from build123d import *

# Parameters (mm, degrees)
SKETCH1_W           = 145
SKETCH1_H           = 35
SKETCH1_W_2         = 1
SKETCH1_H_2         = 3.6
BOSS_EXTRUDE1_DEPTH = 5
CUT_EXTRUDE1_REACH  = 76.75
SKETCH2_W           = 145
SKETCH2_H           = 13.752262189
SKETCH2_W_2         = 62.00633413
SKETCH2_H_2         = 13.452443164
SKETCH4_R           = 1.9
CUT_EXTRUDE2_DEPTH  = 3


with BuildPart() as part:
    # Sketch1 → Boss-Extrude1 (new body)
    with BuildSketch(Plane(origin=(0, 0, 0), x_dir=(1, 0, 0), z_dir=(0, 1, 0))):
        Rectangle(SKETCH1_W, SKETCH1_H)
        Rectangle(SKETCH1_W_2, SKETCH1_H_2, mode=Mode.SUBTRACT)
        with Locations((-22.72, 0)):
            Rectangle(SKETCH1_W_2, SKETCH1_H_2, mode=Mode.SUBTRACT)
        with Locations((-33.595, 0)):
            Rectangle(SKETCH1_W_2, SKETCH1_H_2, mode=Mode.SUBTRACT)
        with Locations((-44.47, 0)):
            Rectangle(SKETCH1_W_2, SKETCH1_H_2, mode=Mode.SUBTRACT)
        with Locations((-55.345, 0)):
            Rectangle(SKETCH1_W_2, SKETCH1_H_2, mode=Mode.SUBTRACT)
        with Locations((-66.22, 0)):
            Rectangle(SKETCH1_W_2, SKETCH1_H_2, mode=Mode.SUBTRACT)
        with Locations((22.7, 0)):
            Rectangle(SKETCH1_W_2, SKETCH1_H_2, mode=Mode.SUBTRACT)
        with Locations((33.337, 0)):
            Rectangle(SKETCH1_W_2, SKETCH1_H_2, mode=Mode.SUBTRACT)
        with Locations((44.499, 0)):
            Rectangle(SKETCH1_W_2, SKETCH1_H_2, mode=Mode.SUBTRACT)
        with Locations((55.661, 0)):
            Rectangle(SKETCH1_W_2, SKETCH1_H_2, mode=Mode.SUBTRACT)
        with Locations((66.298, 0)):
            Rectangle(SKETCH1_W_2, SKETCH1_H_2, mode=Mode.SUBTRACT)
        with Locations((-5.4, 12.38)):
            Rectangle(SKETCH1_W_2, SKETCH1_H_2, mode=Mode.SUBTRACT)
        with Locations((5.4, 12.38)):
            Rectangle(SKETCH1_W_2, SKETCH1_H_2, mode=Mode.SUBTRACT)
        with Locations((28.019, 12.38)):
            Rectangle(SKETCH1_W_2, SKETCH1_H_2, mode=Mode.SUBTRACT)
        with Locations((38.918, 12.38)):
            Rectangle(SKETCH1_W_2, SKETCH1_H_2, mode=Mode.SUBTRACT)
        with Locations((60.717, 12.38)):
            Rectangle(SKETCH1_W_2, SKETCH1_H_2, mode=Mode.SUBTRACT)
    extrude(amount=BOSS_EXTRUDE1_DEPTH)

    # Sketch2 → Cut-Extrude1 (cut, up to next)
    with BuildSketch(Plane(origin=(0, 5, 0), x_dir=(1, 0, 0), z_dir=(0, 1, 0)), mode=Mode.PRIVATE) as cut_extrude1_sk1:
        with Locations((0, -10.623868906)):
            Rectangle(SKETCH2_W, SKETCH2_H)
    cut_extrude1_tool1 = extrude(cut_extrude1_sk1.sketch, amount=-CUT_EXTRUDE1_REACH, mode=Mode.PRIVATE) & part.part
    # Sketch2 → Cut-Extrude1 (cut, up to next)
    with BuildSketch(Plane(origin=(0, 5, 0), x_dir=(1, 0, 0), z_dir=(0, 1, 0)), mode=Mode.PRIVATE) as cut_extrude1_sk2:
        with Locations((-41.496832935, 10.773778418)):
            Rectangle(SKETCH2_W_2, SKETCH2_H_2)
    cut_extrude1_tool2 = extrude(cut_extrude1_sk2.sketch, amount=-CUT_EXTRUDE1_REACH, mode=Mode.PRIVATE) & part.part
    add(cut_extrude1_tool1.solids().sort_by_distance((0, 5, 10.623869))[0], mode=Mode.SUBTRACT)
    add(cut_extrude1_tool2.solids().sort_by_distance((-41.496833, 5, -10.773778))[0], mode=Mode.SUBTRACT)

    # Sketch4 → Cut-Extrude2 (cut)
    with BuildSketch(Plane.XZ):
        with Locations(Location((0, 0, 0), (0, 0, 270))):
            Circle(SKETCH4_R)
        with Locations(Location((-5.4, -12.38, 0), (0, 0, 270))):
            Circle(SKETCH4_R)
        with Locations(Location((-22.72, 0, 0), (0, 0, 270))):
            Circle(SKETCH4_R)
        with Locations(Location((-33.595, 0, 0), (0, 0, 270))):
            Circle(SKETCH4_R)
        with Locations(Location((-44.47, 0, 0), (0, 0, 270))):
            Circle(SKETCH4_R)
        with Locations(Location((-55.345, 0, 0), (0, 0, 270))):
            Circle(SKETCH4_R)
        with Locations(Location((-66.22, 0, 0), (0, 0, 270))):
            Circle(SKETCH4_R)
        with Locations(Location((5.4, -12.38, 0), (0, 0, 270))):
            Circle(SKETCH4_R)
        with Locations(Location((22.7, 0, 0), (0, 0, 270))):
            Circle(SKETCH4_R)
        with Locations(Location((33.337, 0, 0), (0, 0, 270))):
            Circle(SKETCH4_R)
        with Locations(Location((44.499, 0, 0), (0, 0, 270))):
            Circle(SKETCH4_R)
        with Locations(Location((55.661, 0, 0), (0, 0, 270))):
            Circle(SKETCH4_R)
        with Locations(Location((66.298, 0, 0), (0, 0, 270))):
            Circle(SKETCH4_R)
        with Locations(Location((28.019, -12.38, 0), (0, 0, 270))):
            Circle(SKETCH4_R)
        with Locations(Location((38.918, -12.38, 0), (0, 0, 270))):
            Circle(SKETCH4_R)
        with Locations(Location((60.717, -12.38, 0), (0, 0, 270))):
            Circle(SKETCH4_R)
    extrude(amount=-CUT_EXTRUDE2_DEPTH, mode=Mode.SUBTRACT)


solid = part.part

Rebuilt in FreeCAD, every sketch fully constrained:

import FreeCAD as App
import Part
import Sketcher

V = App.Vector

doc = App.newDocument("Part")
params = doc.addObject("Spreadsheet::Sheet", "Params")
for row, (alias, value) in enumerate([
    ("sketch1_width", "145 mm"),
    ("sketch1_width2", "1 mm"),
    ("sketch1_height", "35 mm"),
    ("sketch1_height2", "3.6 mm"),
    ("pad1_length", "5 mm"),
    ("sketch2_width", "145 mm"),
    ("sketch4_diameter", "3.8 mm"),
    ("pocket3_length", "3 mm"),
], start=1):
    params.set(f"A{row}", alias)
    params.set(f"B{row}", "=" + value)
    params.setAlias(f"B{row}", alias)

body = doc.addObject("PartDesign::Body", "Body")

# Sketch on XZ plane
sketch1 = body.newObject("Sketcher::SketchObject", "Sketch")
sketch1.AttachmentSupport = (doc.getObject("XZ_Plane"), [""])
sketch1.MapMode = "FlatFace"
sketch1.addGeometry([
    Part.LineSegment(V(-72.5, -17.5, 0), V(-72.5, 17.5, 0)),  # 0
    Part.LineSegment(V(-72.5, 17.5, 0), V(72.5, 17.5, 0)),  # 1
    Part.LineSegment(V(72.5, 17.5, 0), V(72.5, -17.5, 0)),  # 2
    Part.LineSegment(V(72.5, -17.5, 0), V(-72.5, -17.5, 0)),  # 3
    Part.LineSegment(V(-65.7, 1.8, 0), V(-66.7, 1.8, 0)),  # 4
    Part.LineSegment(V(-66.7, 1.8, 0), V(-66.7, -1.8, 0)),  # 5
    Part.LineSegment(V(-66.7, -1.8, 0), V(-65.7, -1.8, 0)),  # 6
    Part.LineSegment(V(-65.7, -1.8, 0), V(-65.7, 1.8, 0)),  # 7
    Part.LineSegment(V(-54.8, 1.8, 0), V(-55.8, 1.8, 0)),  # 8
    Part.LineSegment(V(-55.8, 1.8, 0), V(-55.8, -1.8, 0)),  # 9
    Part.LineSegment(V(-55.8, -1.8, 0), V(-54.8, -1.8, 0)),  # 10
    Part.LineSegment(V(-54.8, -1.8, 0), V(-54.8, 1.8, 0)),  # 11
    Part.LineSegment(V(-44, 1.8, 0), V(-45, 1.8, 0)),  # 12
    Part.LineSegment(V(-45, 1.8, 0), V(-45, -1.8, 0)),  # 13
    Part.LineSegment(V(-45, -1.8, 0), V(-44, -1.8, 0)),  # 14
    Part.LineSegment(V(-44, -1.8, 0), V(-44, 1.8, 0)),  # 15
    Part.LineSegment(V(-33.1, 1.8, 0), V(-34.1, 1.8, 0)),  # 16
    Part.LineSegment(V(-34.1, 1.8, 0), V(-34.1, -1.8, 0)),  # 17
    Part.LineSegment(V(-34.1, -1.8, 0), V(-33.1, -1.8, 0)),  # 18
    Part.LineSegment(V(-33.1, -1.8, 0), V(-33.1, 1.8, 0)),  # 19
    Part.LineSegment(V(-22.2, 1.8, 0), V(-23.2, 1.8, 0)),  # 20
    Part.LineSegment(V(-23.2, 1.8, 0), V(-23.2, -1.8, 0)),  # 21
    Part.LineSegment(V(-23.2, -1.8, 0), V(-22.2, -1.8, 0)),  # 22
    Part.LineSegment(V(-22.2, -1.8, 0), V(-22.2, 1.8, 0)),  # 23
    Part.LineSegment(V(0.5, 1.8, 0), V(-0.5, 1.8, 0)),  # 24
    Part.LineSegment(V(-0.5, 1.8, 0), V(-0.5, -1.8, 0)),  # 25
    Part.LineSegment(V(-0.5, -1.8, 0), V(0.5, -1.8, 0)),  # 26
    Part.LineSegment(V(0.5, -1.8, 0), V(0.5, 1.8, 0)),  # 27
    Part.LineSegment(V(23.2, 1.8, 0), V(22.2, 1.8, 0)),  # 28
    Part.LineSegment(V(22.2, 1.8, 0), V(22.2, -1.8, 0)),  # 29
    Part.LineSegment(V(22.2, -1.8, 0), V(23.2, -1.8, 0)),  # 30
    Part.LineSegment(V(23.2, -1.8, 0), V(23.2, 1.8, 0)),  # 31
    Part.LineSegment(V(33.8, 1.8, 0), V(32.8, 1.8, 0)),  # 32
    Part.LineSegment(V(32.8, 1.8, 0), V(32.8, -1.8, 0)),  # 33
    Part.LineSegment(V(32.8, -1.8, 0), V(33.8, -1.8, 0)),  # 34
    Part.LineSegment(V(33.8, -1.8, 0), V(33.8, 1.8, 0)),  # 35
    Part.LineSegment(V(45, 1.8, 0), V(44, 1.8, 0)),  # 36
    Part.LineSegment(V(44, 1.8, 0), V(44, -1.8, 0)),  # 37
    Part.LineSegment(V(44, -1.8, 0), V(45, -1.8, 0)),  # 38
    Part.LineSegment(V(45, -1.8, 0), V(45, 1.8, 0)),  # 39
    Part.LineSegment(V(56.2, 1.8, 0), V(55.2, 1.8, 0)),  # 40
    Part.LineSegment(V(55.2, 1.8, 0), V(55.2, -1.8, 0)),  # 41
    Part.LineSegment(V(55.2, -1.8, 0), V(56.2, -1.8, 0)),  # 42
    Part.LineSegment(V(56.2, -1.8, 0), V(56.2, 1.8, 0)),  # 43
    Part.LineSegment(V(66.8, 1.8, 0), V(65.8, 1.8, 0)),  # 44
    Part.LineSegment(V(65.8, 1.8, 0), V(65.8, -1.8, 0)),  # 45
    Part.LineSegment(V(65.8, -1.8, 0), V(66.8, -1.8, 0)),  # 46
    Part.LineSegment(V(66.8, -1.8, 0), V(66.8, 1.8, 0)),  # 47
    Part.LineSegment(V(-4.9, -10.6, 0), V(-5.9, -10.6, 0)),  # 48
    Part.LineSegment(V(-5.9, -10.6, 0), V(-5.9, -14.2, 0)),  # 49
    Part.LineSegment(V(-5.9, -14.2, 0), V(-4.9, -14.2, 0)),  # 50
    Part.LineSegment(V(-4.9, -14.2, 0), V(-4.9, -10.6, 0)),  # 51
    Part.LineSegment(V(5.9, -10.6, 0), V(4.9, -10.6, 0)),  # 52
    Part.LineSegment(V(4.9, -10.6, 0), V(4.9, -14.2, 0)),  # 53
    Part.LineSegment(V(4.9, -14.2, 0), V(5.9, -14.2, 0)),  # 54
    Part.LineSegment(V(5.9, -14.2, 0), V(5.9, -10.6, 0)),  # 55
    Part.LineSegment(V(28.5, -10.6, 0), V(27.5, -10.6, 0)),  # 56
    Part.LineSegment(V(27.5, -10.6, 0), V(27.5, -14.2, 0)),  # 57
    Part.LineSegment(V(27.5, -14.2, 0), V(28.5, -14.2, 0)),  # 58
    Part.LineSegment(V(28.5, -14.2, 0), V(28.5, -10.6, 0)),  # 59
    Part.LineSegment(V(39.4, -10.6, 0), V(38.4, -10.6, 0)),  # 60
    Part.LineSegment(V(38.4, -10.6, 0), V(38.4, -14.2, 0)),  # 61
    Part.LineSegment(V(38.4, -14.2, 0), V(39.4, -14.2, 0)),  # 62
    Part.LineSegment(V(39.4, -14.2, 0), V(39.4, -10.6, 0)),  # 63
    Part.LineSegment(V(61.2, -10.6, 0), V(60.2, -10.6, 0)),  # 64
    Part.LineSegment(V(60.2, -10.6, 0), V(60.2, -14.2, 0)),  # 65
    Part.LineSegment(V(60.2, -14.2, 0), V(61.2, -14.2, 0)),  # 66
    Part.LineSegment(V(61.2, -14.2, 0), V(61.2, -10.6, 0)),  # 67
], False)
sketch1.addConstraint([
    Sketcher.Constraint("Coincident", 0, 2, 1, 1),
    Sketcher.Constraint("Coincident", 1, 2, 2, 1),
    Sketcher.Constraint("Coincident", 2, 2, 3, 1),
    Sketcher.Constraint("Coincident", 3, 2, 0, 1),
    Sketcher.Constraint("Coincident", 4, 2, 5, 1),
    Sketcher.Constraint("Coincident", 5, 2, 6, 1),
    Sketcher.Constraint("Coincident", 6, 2, 7, 1),
    Sketcher.Constraint("Coincident", 7, 2, 4, 1),
    Sketcher.Constraint("Coincident", 8, 2, 9, 1),
    Sketcher.Constraint("Coincident", 9, 2, 10, 1),
    Sketcher.Constraint("Coincident", 10, 2, 11, 1),
    Sketcher.Constraint("Coincident", 11, 2, 8, 1),
    Sketcher.Constraint("Coincident", 12, 2, 13, 1),
    Sketcher.Constraint("Coincident", 13, 2, 14, 1),
    Sketcher.Constraint("Coincident", 14, 2, 15, 1),
    Sketcher.Constraint("Coincident", 15, 2, 12, 1),
    Sketcher.Constraint("Coincident", 16, 2, 17, 1),
    Sketcher.Constraint("Coincident", 17, 2, 18, 1),
    Sketcher.Constraint("Coincident", 18, 2, 19, 1),
    Sketcher.Constraint("Coincident", 19, 2, 16, 1),
    Sketcher.Constraint("Coincident", 20, 2, 21, 1),
    Sketcher.Constraint("Coincident", 21, 2, 22, 1),
    Sketcher.Constraint("Coincident", 22, 2, 23, 1),
    Sketcher.Constraint("Coincident", 23, 2, 20, 1),
    Sketcher.Constraint("Coincident", 24, 2, 25, 1),
    Sketcher.Constraint("Coincident", 25, 2, 26, 1),
    Sketcher.Constraint("Coincident", 26, 2, 27, 1),
    Sketcher.Constraint("Coincident", 27, 2, 24, 1),
    Sketcher.Constraint("Coincident", 28, 2, 29, 1),
    Sketcher.Constraint("Coincident", 29, 2, 30, 1),
    Sketcher.Constraint("Coincident", 30, 2, 31, 1),
    Sketcher.Constraint("Coincident", 31, 2, 28, 1),
    Sketcher.Constraint("Coincident", 32, 2, 33, 1),
    Sketcher.Constraint("Coincident", 33, 2, 34, 1),
    Sketcher.Constraint("Coincident", 34, 2, 35, 1),
    Sketcher.Constraint("Coincident", 35, 2, 32, 1),
    Sketcher.Constraint("Coincident", 36, 2, 37, 1),
    Sketcher.Constraint("Coincident", 37, 2, 38, 1),
    Sketcher.Constraint("Coincident", 38, 2, 39, 1),
    Sketcher.Constraint("Coincident", 39, 2, 36, 1),
    Sketcher.Constraint("Coincident", 40, 2, 41, 1),
    Sketcher.Constraint("Coincident", 41, 2, 42, 1),
    Sketcher.Constraint("Coincident", 42, 2, 43, 1),
    Sketcher.Constraint("Coincident", 43, 2, 40, 1),
    Sketcher.Constraint("Coincident", 44, 2, 45, 1),
    Sketcher.Constraint("Coincident", 45, 2, 46, 1),
    Sketcher.Constraint("Coincident", 46, 2, 47, 1),
    Sketcher.Constraint("Coincident", 47, 2, 44, 1),
    Sketcher.Constraint("Coincident", 48, 2, 49, 1),
    Sketcher.Constraint("Coincident", 49, 2, 50, 1),
    Sketcher.Constraint("Coincident", 50, 2, 51, 1),
    Sketcher.Constraint("Coincident", 51, 2, 48, 1),
    Sketcher.Constraint("Coincident", 52, 2, 53, 1),
    Sketcher.Constraint("Coincident", 53, 2, 54, 1),
    Sketcher.Constraint("Coincident", 54, 2, 55, 1),
    Sketcher.Constraint("Coincident", 55, 2, 52, 1),
    Sketcher.Constraint("Coincident", 56, 2, 57, 1),
    Sketcher.Constraint("Coincident", 57, 2, 58, 1),
    Sketcher.Constraint("Coincident", 58, 2, 59, 1),
    Sketcher.Constraint("Coincident", 59, 2, 56, 1),
    Sketcher.Constraint("Coincident", 60, 2, 61, 1),
    Sketcher.Constraint("Coincident", 61, 2, 62, 1),
    Sketcher.Constraint("Coincident", 62, 2, 63, 1),
    Sketcher.Constraint("Coincident", 63, 2, 60, 1),
    Sketcher.Constraint("Coincident", 64, 2, 65, 1),
    Sketcher.Constraint("Coincident", 65, 2, 66, 1),
    Sketcher.Constraint("Coincident", 66, 2, 67, 1),
    Sketcher.Constraint("Coincident", 67, 2, 64, 1),
    Sketcher.Constraint("Vertical", 0),
    Sketcher.Constraint("Horizontal", 1),
    Sketcher.Constraint("Vertical", 2),
    Sketcher.Constraint("Horizontal", 3),
    Sketcher.Constraint("Horizontal", 4),
    Sketcher.Constraint("Vertical", 5),
    Sketcher.Constraint("Horizontal", 6),
    Sketcher.Constraint("Vertical", 7),
    Sketcher.Constraint("Horizontal", 8),
    Sketcher.Constraint("Vertical", 9),
    Sketcher.Constraint("Horizontal", 10),
    Sketcher.Constraint("Vertical", 11),
    Sketcher.Constraint("Horizontal", 12),
    Sketcher.Constraint("Vertical", 13),
    Sketcher.Constraint("Horizontal", 14),
    Sketcher.Constraint("Vertical", 15),
    Sketcher.Constraint("Horizontal", 16),
    Sketcher.Constraint("Vertical", 17),
    Sketcher.Constraint("Horizontal", 18),
    Sketcher.Constraint("Vertical", 19),
    Sketcher.Constraint("Horizontal", 20),
    Sketcher.Constraint("Vertical", 21),
    Sketcher.Constraint("Horizontal", 22),
    Sketcher.Constraint("Vertical", 23),
    Sketcher.Constraint("Horizontal", 24),
    Sketcher.Constraint("Vertical", 25),
    Sketcher.Constraint("Horizontal", 26),
    Sketcher.Constraint("Vertical", 27),
    Sketcher.Constraint("Horizontal", 28),
    Sketcher.Constraint("Vertical", 29),
    Sketcher.Constraint("Horizontal", 30),
    Sketcher.Constraint("Vertical", 31),
    Sketcher.Constraint("Horizontal", 32),
    Sketcher.Constraint("Vertical", 33),
    Sketcher.Constraint("Horizontal", 34),
    Sketcher.Constraint("Vertical", 35),
    Sketcher.Constraint("Horizontal", 36),
    Sketcher.Constraint("Vertical", 37),
    Sketcher.Constraint("Horizontal", 38),
    Sketcher.Constraint("Vertical", 39),
    Sketcher.Constraint("Horizontal", 40),
    Sketcher.Constraint("Vertical", 41),
    Sketcher.Constraint("Horizontal", 42),
    Sketcher.Constraint("Vertical", 43),
    Sketcher.Constraint("Horizontal", 44),
    Sketcher.Constraint("Vertical", 45),
    Sketcher.Constraint("Horizontal", 46),
    Sketcher.Constraint("Vertical", 47),
    Sketcher.Constraint("Horizontal", 48),
    Sketcher.Constraint("Vertical", 49),
    Sketcher.Constraint("Horizontal", 50),
    Sketcher.Constraint("Vertical", 51),
    Sketcher.Constraint("Horizontal", 52),
    Sketcher.Constraint("Vertical", 53),
    Sketcher.Constraint("Horizontal", 54),
    Sketcher.Constraint("Vertical", 55),
    Sketcher.Constraint("Horizontal", 56),
    Sketcher.Constraint("Vertical", 57),
    Sketcher.Constraint("Horizontal", 58),
    Sketcher.Constraint("Vertical", 59),
    Sketcher.Constraint("Horizontal", 60),
    Sketcher.Constraint("Vertical", 61),
    Sketcher.Constraint("Horizontal", 62),
    Sketcher.Constraint("Vertical", 63),
    Sketcher.Constraint("Horizontal", 64),
    Sketcher.Constraint("Vertical", 65),
    Sketcher.Constraint("Horizontal", 66),
    Sketcher.Constraint("Vertical", 67),
    Sketcher.Constraint("Symmetric", 0, 2, 2, 2, -1, 1),
    Sketcher.Constraint("Symmetric", 24, 2, 26, 2, -1, 1),
    Sketcher.Constraint("Symmetric", 51, 2, 52, 2, -2),
    Sketcher.Constraint("Symmetric", 49, 2, 54, 2, -2),
    Sketcher.Constraint("Horizontal", 7, 2, 8, 2),
    Sketcher.Constraint("Horizontal", 6, 2, 9, 2),
    Sketcher.Constraint("Horizontal", 11, 2, 12, 2),
    Sketcher.Constraint("Horizontal", 10, 2, 13, 2),
    Sketcher.Constraint("Horizontal", 15, 2, 16, 2),
    Sketcher.Constraint("Horizontal", 14, 2, 17, 2),
    Sketcher.Constraint("Horizontal", 19, 2, 20, 2),
    Sketcher.Constraint("Horizontal", 18, 2, 21, 2),
    Sketcher.Constraint("Horizontal", 23, 2, 24, 2),
    Sketcher.Constraint("Horizontal", 22, 2, 25, 2),
    Sketcher.Constraint("Horizontal", 27, 2, 28, 2),
    Sketcher.Constraint("Horizontal", 26, 2, 29, 2),
    Sketcher.Constraint("Horizontal", 31, 2, 32, 2),
    Sketcher.Constraint("Horizontal", 30, 2, 33, 2),
    Sketcher.Constraint("Horizontal", 35, 2, 36, 2),
    Sketcher.Constraint("Horizontal", 34, 2, 37, 2),
    Sketcher.Constraint("Horizontal", 39, 2, 40, 2),
    Sketcher.Constraint("Horizontal", 38, 2, 41, 2),
    Sketcher.Constraint("Horizontal", 43, 2, 44, 2),
    Sketcher.Constraint("Horizontal", 42, 2, 45, 2),
    Sketcher.Constraint("Horizontal", 55, 2, 56, 2),
    Sketcher.Constraint("Horizontal", 54, 2, 57, 2),
    Sketcher.Constraint("Horizontal", 59, 2, 60, 2),
    Sketcher.Constraint("Horizontal", 58, 2, 61, 2),
    Sketcher.Constraint("Horizontal", 63, 2, 64, 2),
    Sketcher.Constraint("Horizontal", 62, 2, 65, 2),
    Sketcher.Constraint("Equal", 6, 8),
    Sketcher.Constraint("Equal", 10, 12),
    Sketcher.Constraint("Equal", 14, 16),
    Sketcher.Constraint("Equal", 18, 20),
    Sketcher.Constraint("Equal", 22, 24),
    Sketcher.Constraint("Equal", 26, 28),
    Sketcher.Constraint("Equal", 30, 32),
    Sketcher.Constraint("Equal", 34, 36),
    Sketcher.Constraint("Equal", 38, 40),
    Sketcher.Constraint("Equal", 42, 44),
    Sketcher.Constraint("Equal", 46, 48),
    Sketcher.Constraint("Equal", 54, 56),
    Sketcher.Constraint("Equal", 58, 60),
    Sketcher.Constraint("Equal", 62, 64),
    Sketcher.Constraint("Equal", 47, 49),
    Sketcher.Constraint("DistanceX", 1, 1, 1, 2, 145.0),
    Sketcher.Constraint("DistanceX", 4, 2, 4, 1, 1.0),
    Sketcher.Constraint("DistanceY", 0, 1, 0, 2, 35.0),
    Sketcher.Constraint("DistanceY", 5, 2, 5, 1, 3.6),
    Sketcher.Constraint("DistanceX", -1, 1, 28, 2, 22.2),
    Sketcher.Constraint("DistanceX", 48, 2, -1, 1, 5.9),
    Sketcher.Constraint("DistanceX", 4, 2, -1, 1, 66.72),
    Sketcher.Constraint("DistanceX", 12, 2, -1, 1, 44.97),
    Sketcher.Constraint("DistanceX", 20, 2, -1, 1, 23.22),
    Sketcher.Constraint("DistanceY", 48, 2, -1, 1, 10.58),
    Sketcher.Constraint("DistanceX", 8, 2, -1, 1, 55.845),
    Sketcher.Constraint("DistanceX", 16, 2, -1, 1, 34.095),
    Sketcher.Constraint("DistanceX", -1, 1, 32, 2, 32.837),
    Sketcher.Constraint("DistanceX", -1, 1, 36, 2, 43.999),
    Sketcher.Constraint("DistanceX", -1, 1, 40, 2, 55.161),
    Sketcher.Constraint("DistanceX", -1, 1, 44, 2, 65.798),
    Sketcher.Constraint("DistanceX", -1, 1, 56, 2, 27.519),
    Sketcher.Constraint("DistanceX", -1, 1, 60, 2, 38.418),
    Sketcher.Constraint("DistanceX", -1, 1, 64, 2, 60.217),
])
sketch1.setExpression("Constraints[181]", "Params.sketch1_width")
sketch1.setExpression("Constraints[182]", "Params.sketch1_width2")
sketch1.setExpression("Constraints[183]", "Params.sketch1_height")
sketch1.setExpression("Constraints[184]", "Params.sketch1_height2")
pad1 = body.newObject("PartDesign::Pad", "Pad")
pad1.Profile = sketch1
pad1.setExpression("Length", "Params.pad1_length")
pad1.Reversed = True

# Sketch on XZ plane
sketch2 = body.newObject("Sketcher::SketchObject", "Sketch001")
sketch2.AttachmentSupport = (doc.getObject("XZ_Plane"), [""])
sketch2.MapMode = "FlatFace"
sketch2.AttachmentOffset = App.Placement(V(0, 0, -5), App.Rotation())
sketch2.addGeometry([
    Part.LineSegment(V(-72, 4, 0), V(-72, 18, 0)),
    Part.LineSegment(V(-72, 18, 0), V(72, 18, 0)),
    Part.LineSegment(V(72, 18, 0), V(72, 4, 0)),
    Part.LineSegment(V(72, 4, 0), V(-72, 4, 0)),
], False)
sketch2.addConstraint([
    Sketcher.Constraint("Coincident", 0, 2, 1, 1),
    Sketcher.Constraint("Coincident", 1, 2, 2, 1),
    Sketcher.Constraint("Coincident", 2, 2, 3, 1),
    Sketcher.Constraint("Coincident", 3, 2, 0, 1),
    Sketcher.Constraint("Vertical", 0),
    Sketcher.Constraint("Horizontal", 1),
    Sketcher.Constraint("Vertical", 2),
    Sketcher.Constraint("Horizontal", 3),
    Sketcher.Constraint("DistanceX", 1, 1, 1, 2, 145.0),
    Sketcher.Constraint("DistanceX", 0, 2, -1, 1, 72.5),
    Sketcher.Constraint("DistanceY", -1, 1, 0, 2, 17.5),
    Sketcher.Constraint("DistanceY", 0, 1, 0, 2, 13.752262),
])
sketch2.setExpression("Constraints[8]", "Params.sketch2_width")
pocket1 = body.newObject("PartDesign::Pocket", "Pocket")
pocket1.Profile = sketch2
pocket1.Type = "UpToFirst"
pocket1.Reversed = True

# Sketch on XZ plane
sketch3 = body.newObject("Sketcher::SketchObject", "Sketch002")
sketch3.AttachmentSupport = (doc.getObject("XZ_Plane"), [""])
sketch3.MapMode = "FlatFace"
sketch3.AttachmentOffset = App.Placement(V(0, 0, -5), App.Rotation())
sketch3.addGeometry([
    Part.LineSegment(V(-72, -18, 0), V(-72, -4, 0)),
    Part.LineSegment(V(-72, -4, 0), V(-10, -4, 0)),
    Part.LineSegment(V(-10, -4, 0), V(-10, -18, 0)),
    Part.LineSegment(V(-10, -18, 0), V(-72, -18, 0)),
], False)
sketch3.addConstraint([
    Sketcher.Constraint("Coincident", 0, 2, 1, 1),
    Sketcher.Constraint("Coincident", 1, 2, 2, 1),
    Sketcher.Constraint("Coincident", 2, 2, 3, 1),
    Sketcher.Constraint("Coincident", 3, 2, 0, 1),
    Sketcher.Constraint("Vertical", 0),
    Sketcher.Constraint("Horizontal", 1),
    Sketcher.Constraint("Vertical", 2),
    Sketcher.Constraint("Horizontal", 3),
    Sketcher.Constraint("DistanceX", 0, 2, -1, 1, 72.5),
    Sketcher.Constraint("DistanceY", 2, 2, -1, 1, 17.5),
    Sketcher.Constraint("DistanceX", 1, 1, 1, 2, 62.006334),
    Sketcher.Constraint("DistanceY", 0, 1, 0, 2, 13.452443),
])
pocket2 = body.newObject("PartDesign::Pocket", "Pocket001")
pocket2.Profile = sketch3
pocket2.Type = "UpToFirst"
pocket2.Reversed = True

# Sketch on XZ plane
sketch4 = body.newObject("Sketcher::SketchObject", "Sketch003")
sketch4.AttachmentSupport = (doc.getObject("XZ_Plane"), [""])
sketch4.MapMode = "FlatFace"
sketch4.addGeometry([
    Part.Circle(V(0, 0, 0), V(0, 0, 1), 1.9),  # 0
    Part.Circle(V(-5.4, -12.4, 0), V(0, 0, 1), 1.9),  # 1
    Part.Circle(V(-22.7, 0, 0), V(0, 0, 1), 1.9),  # 2
    Part.Circle(V(-33.6, 0, 0), V(0, 0, 1), 1.9),  # 3
    Part.Circle(V(-44.5, 0, 0), V(0, 0, 1), 1.9),  # 4
    Part.Circle(V(-55.3, 0, 0), V(0, 0, 1), 1.9),  # 5
    Part.Circle(V(-66.2, 0, 0), V(0, 0, 1), 1.9),  # 6
    Part.Circle(V(5.4, -12.4, 0), V(0, 0, 1), 1.9),  # 7
    Part.Circle(V(22.7, 0, 0), V(0, 0, 1), 1.9),  # 8
    Part.Circle(V(33.3, 0, 0), V(0, 0, 1), 1.9),  # 9
    Part.Circle(V(44.5, 0, 0), V(0, 0, 1), 1.9),  # 10
    Part.Circle(V(55.7, 0, 0), V(0, 0, 1), 1.9),  # 11
    Part.Circle(V(66.3, 0, 0), V(0, 0, 1), 1.9),  # 12
    Part.Circle(V(28, -12.4, 0), V(0, 0, 1), 1.9),  # 13
    Part.Circle(V(38.9, -12.4, 0), V(0, 0, 1), 1.9),  # 14
    Part.Circle(V(60.7, -12.4, 0), V(0, 0, 1), 1.9),  # 15
], False)
sketch4.addConstraint([
    Sketcher.Constraint("Coincident", 0, 3, -1, 1),
    Sketcher.Constraint("Equal", 0, 1),
    Sketcher.Constraint("Equal", 1, 2),
    Sketcher.Constraint("Equal", 2, 3),
    Sketcher.Constraint("Equal", 3, 4),
    Sketcher.Constraint("Equal", 4, 5),
    Sketcher.Constraint("Equal", 5, 6),
    Sketcher.Constraint("Equal", 6, 7),
    Sketcher.Constraint("Equal", 7, 8),
    Sketcher.Constraint("Equal", 8, 9),
    Sketcher.Constraint("Equal", 9, 10),
    Sketcher.Constraint("Equal", 10, 11),
    Sketcher.Constraint("Equal", 11, 12),
    Sketcher.Constraint("Equal", 12, 13),
    Sketcher.Constraint("Equal", 13, 14),
    Sketcher.Constraint("Equal", 14, 15),
    Sketcher.Constraint("Symmetric", 1, 3, 7, 3, -2),
    Sketcher.Constraint("PointOnObject", 2, 3, -1),
    Sketcher.Constraint("PointOnObject", 3, 3, -1),
    Sketcher.Constraint("PointOnObject", 4, 3, -1),
    Sketcher.Constraint("PointOnObject", 5, 3, -1),
    Sketcher.Constraint("PointOnObject", 6, 3, -1),
    Sketcher.Constraint("PointOnObject", 8, 3, -1),
    Sketcher.Constraint("PointOnObject", 9, 3, -1),
    Sketcher.Constraint("PointOnObject", 10, 3, -1),
    Sketcher.Constraint("PointOnObject", 11, 3, -1),
    Sketcher.Constraint("PointOnObject", 12, 3, -1),
    Sketcher.Constraint("Horizontal", 7, 3, 13, 3),
    Sketcher.Constraint("Horizontal", 13, 3, 14, 3),
    Sketcher.Constraint("Horizontal", 14, 3, 15, 3),
    Sketcher.Constraint("Diameter", 0, 3.8),
    Sketcher.Constraint("DistanceX", 1, 3, -1, 1, 5.4),
    Sketcher.Constraint("DistanceX", -1, 1, 8, 3, 22.7),
    Sketcher.Constraint("DistanceX", 6, 3, 2, 3, 43.5),
    Sketcher.Constraint("DistanceY", 1, 3, -1, 1, 12.38),
    Sketcher.Constraint("DistanceX", 2, 3, -1, 1, 22.72),
    Sketcher.Constraint("DistanceX", 4, 3, -1, 1, 44.47),
    Sketcher.Constraint("DistanceX", 5, 3, 3, 3, 21.75),
    Sketcher.Constraint("DistanceX", 13, 3, 10, 3, 16.48),
    Sketcher.Constraint("DistanceX", 9, 3, 15, 3, 27.38),
    Sketcher.Constraint("DistanceX", 3, 3, -1, 1, 33.595),
    Sketcher.Constraint("DistanceX", -1, 1, 9, 3, 33.337),
    Sketcher.Constraint("DistanceX", -1, 1, 10, 3, 44.499),
    Sketcher.Constraint("DistanceX", -1, 1, 11, 3, 55.661),
    Sketcher.Constraint("DistanceX", -1, 1, 12, 3, 66.298),
    Sketcher.Constraint("DistanceX", -1, 1, 14, 3, 38.918),
])
sketch4.setExpression("Constraints[30]", "Params.sketch4_diameter")
pocket3 = body.newObject("PartDesign::Pocket", "Pocket002")
pocket3.Profile = sketch4
pocket3.setExpression("Length", "Params.pocket3_length")

doc.recompute()
